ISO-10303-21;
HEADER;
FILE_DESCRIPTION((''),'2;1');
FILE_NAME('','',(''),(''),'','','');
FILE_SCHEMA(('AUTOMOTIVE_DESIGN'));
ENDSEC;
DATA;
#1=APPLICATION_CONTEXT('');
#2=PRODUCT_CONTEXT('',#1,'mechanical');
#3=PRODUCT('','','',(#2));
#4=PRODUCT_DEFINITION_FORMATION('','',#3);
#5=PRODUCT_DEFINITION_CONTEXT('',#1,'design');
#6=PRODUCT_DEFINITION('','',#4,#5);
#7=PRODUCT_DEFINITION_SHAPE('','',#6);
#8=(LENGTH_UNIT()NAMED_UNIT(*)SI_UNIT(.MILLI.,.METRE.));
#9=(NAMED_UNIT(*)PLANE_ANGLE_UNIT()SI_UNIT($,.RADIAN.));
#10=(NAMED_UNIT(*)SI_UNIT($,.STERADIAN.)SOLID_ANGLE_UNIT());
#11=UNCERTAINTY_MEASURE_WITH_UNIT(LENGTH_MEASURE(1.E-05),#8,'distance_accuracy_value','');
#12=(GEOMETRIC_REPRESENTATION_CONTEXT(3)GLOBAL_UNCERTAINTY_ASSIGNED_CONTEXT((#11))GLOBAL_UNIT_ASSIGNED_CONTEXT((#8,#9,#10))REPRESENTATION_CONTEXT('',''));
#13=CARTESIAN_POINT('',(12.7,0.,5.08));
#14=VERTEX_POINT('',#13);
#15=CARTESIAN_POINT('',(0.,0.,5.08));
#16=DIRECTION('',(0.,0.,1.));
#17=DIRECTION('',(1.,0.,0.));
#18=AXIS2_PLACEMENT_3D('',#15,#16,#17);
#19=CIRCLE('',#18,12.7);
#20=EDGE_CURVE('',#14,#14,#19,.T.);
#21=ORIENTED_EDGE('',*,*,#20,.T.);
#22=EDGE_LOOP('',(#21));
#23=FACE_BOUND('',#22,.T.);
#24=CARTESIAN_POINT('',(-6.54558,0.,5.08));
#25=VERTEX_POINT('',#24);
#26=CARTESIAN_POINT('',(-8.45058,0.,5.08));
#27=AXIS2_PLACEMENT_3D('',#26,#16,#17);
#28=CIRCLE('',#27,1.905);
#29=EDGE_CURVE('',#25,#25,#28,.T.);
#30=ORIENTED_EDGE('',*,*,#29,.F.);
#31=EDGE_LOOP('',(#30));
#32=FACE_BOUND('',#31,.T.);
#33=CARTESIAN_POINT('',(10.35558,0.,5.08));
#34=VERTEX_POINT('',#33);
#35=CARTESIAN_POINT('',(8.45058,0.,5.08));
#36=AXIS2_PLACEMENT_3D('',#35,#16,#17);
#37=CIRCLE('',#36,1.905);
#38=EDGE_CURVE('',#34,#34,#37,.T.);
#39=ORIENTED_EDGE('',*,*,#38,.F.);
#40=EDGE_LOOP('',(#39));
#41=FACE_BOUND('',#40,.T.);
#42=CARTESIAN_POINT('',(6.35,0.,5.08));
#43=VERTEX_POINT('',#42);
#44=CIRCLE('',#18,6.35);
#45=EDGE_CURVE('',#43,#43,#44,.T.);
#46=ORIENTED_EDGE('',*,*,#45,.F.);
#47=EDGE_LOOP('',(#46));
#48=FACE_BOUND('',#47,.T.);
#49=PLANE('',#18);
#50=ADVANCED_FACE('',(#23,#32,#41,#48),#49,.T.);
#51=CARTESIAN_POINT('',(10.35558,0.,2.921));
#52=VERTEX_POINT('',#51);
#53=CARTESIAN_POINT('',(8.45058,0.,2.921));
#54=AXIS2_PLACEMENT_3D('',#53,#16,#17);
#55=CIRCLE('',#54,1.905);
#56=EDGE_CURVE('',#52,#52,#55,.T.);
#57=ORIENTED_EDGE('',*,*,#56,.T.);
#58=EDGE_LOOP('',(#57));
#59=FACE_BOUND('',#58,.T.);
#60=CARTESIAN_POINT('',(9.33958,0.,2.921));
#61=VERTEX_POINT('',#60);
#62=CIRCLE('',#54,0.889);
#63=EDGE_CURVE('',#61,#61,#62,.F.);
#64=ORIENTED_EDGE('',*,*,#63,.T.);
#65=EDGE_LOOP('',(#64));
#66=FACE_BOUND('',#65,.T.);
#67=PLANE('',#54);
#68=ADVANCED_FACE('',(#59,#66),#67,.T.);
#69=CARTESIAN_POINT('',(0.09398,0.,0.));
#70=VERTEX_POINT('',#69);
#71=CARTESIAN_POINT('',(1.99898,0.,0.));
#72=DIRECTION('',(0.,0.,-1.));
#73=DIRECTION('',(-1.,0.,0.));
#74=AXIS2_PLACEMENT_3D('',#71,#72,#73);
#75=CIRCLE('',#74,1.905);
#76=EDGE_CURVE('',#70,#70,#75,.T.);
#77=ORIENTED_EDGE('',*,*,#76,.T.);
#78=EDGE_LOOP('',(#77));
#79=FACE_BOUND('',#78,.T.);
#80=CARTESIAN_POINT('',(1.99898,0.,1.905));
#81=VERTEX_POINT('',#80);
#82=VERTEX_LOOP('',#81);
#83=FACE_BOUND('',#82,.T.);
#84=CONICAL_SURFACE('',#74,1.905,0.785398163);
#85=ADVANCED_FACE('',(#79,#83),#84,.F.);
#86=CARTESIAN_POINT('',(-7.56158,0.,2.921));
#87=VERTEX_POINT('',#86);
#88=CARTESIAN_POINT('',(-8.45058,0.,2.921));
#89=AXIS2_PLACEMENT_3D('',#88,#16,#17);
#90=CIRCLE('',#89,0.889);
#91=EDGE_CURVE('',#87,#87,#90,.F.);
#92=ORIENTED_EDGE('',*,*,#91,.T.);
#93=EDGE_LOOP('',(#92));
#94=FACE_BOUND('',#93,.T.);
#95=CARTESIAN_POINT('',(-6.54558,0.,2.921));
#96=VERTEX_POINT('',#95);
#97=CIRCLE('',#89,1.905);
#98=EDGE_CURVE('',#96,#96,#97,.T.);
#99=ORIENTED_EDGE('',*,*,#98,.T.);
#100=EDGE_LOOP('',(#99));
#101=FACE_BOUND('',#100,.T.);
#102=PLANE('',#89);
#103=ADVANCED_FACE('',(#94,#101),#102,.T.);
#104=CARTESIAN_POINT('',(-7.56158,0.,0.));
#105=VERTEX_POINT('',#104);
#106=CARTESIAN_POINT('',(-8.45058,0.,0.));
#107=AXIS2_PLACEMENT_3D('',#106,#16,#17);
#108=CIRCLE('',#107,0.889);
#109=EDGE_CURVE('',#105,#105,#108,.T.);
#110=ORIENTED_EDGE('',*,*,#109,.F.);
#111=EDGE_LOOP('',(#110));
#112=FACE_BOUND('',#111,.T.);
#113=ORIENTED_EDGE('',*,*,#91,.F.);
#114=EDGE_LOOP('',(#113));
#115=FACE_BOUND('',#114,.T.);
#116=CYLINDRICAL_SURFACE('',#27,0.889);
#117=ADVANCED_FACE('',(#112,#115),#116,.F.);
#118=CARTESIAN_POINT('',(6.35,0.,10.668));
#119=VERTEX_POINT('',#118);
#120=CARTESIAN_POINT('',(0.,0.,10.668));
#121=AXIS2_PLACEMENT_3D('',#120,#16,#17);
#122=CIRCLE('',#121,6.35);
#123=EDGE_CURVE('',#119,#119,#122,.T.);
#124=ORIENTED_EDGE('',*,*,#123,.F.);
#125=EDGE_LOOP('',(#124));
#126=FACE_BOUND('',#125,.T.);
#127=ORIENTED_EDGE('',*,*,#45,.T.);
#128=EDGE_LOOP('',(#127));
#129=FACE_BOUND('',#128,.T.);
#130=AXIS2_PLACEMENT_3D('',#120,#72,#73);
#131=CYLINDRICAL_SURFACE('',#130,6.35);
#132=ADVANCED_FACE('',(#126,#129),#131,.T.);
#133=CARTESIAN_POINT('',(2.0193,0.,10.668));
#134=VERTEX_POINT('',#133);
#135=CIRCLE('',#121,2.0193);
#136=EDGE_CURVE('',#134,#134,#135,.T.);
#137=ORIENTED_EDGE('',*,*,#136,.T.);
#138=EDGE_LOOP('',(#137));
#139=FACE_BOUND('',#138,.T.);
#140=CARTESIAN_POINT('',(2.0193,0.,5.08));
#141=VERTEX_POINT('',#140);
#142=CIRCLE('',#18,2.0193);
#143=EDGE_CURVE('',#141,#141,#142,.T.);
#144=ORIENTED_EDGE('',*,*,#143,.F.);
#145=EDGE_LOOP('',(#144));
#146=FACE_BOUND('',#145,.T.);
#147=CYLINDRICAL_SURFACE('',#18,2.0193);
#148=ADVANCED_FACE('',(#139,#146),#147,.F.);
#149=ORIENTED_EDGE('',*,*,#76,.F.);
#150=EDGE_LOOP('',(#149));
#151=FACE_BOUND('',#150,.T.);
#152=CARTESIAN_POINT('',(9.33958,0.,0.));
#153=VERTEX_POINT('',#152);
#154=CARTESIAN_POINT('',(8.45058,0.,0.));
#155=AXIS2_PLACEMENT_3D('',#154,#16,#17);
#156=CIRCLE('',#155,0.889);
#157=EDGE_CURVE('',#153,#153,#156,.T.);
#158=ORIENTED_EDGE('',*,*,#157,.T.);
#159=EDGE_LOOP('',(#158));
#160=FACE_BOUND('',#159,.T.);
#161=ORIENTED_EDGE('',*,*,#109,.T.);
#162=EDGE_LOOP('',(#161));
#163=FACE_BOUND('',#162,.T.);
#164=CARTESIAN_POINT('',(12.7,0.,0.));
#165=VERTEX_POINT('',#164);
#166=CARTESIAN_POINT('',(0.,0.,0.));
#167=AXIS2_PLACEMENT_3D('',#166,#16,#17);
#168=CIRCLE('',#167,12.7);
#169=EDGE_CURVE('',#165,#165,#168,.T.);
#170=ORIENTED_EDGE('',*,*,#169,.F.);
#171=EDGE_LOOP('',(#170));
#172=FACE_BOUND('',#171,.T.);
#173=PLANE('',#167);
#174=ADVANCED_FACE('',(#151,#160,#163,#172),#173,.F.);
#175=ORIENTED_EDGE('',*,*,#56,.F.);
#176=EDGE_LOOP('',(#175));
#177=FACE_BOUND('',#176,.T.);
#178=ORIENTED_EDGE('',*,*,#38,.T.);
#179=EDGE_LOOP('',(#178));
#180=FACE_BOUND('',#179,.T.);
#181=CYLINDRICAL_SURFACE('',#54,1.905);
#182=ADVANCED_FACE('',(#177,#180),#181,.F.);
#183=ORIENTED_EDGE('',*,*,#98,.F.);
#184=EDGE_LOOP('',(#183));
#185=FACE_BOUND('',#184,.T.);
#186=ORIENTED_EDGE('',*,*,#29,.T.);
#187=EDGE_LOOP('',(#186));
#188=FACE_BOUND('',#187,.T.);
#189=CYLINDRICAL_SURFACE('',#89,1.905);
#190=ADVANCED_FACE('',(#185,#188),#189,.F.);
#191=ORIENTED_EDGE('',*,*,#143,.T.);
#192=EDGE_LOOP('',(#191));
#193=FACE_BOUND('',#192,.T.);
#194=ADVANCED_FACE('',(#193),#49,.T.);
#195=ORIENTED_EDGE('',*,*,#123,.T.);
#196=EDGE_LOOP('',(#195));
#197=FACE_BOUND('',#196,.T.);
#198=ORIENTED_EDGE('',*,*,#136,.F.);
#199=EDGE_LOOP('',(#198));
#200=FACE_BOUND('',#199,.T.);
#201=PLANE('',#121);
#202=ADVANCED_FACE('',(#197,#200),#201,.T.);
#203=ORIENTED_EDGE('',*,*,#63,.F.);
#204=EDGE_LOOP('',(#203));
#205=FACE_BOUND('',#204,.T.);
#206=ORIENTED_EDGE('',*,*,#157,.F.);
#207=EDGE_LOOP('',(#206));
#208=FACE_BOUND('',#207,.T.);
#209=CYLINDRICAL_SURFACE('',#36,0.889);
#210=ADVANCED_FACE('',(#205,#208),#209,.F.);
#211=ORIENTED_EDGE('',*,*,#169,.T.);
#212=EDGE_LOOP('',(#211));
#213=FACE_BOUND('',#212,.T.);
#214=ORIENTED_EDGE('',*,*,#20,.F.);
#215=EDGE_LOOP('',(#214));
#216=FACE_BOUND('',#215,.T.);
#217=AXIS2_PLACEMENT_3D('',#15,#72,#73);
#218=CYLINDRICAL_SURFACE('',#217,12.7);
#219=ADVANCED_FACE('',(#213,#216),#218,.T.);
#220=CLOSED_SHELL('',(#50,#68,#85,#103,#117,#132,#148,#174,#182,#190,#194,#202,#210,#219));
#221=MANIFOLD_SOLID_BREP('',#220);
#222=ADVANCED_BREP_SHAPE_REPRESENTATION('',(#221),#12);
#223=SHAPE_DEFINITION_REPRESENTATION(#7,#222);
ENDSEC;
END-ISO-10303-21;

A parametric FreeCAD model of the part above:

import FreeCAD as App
import Part
import Sketcher
Q = App.Units.Quantity

doc = App.newDocument("Part")
body = doc.addObject("PartDesign::Body", "Body")

# Sketch on XY plane
sketch1 = body.newObject("Sketcher::SketchObject", "Sketch")
sketch1.AttachmentSupport = (doc.getObject("XY_Plane"), [""])
sketch1.MapMode = "FlatFace"
sketch1.addGeometry(Part.Circle(App.Vector(0, 0, 0), App.Vector(0, 0, 1), 13), False)
sketch1.addConstraint([
    Sketcher.Constraint("Coincident", 0, 3, -1, 1),
    Sketcher.Constraint("Diameter", 0, Q("1 in")),
])
pad1 = body.newObject("PartDesign::Pad", "Pad")
pad1.Profile = sketch1
pad1.Length = Q("0.2 in")

# Sketch on XY plane
sketch2 = body.newObject("Sketcher::SketchObject", "Sketch001")
sketch2.AttachmentSupport = (doc.getObject("XY_Plane"), [""])
sketch2.MapMode = "FlatFace"
sketch2.AttachmentOffset = App.Placement(App.Vector(0, 0, 0.2 * 25.4), App.Rotation())
sketch2.addGeometry(Part.Circle(App.Vector(0, 0, 0), App.Vector(0, 0, 1), 6), False)
sketch2.addConstraint([
    Sketcher.Constraint("Coincident", 0, 3, -1, 1),
    Sketcher.Constraint("Diameter", 0, Q("0.5 in")),
])
pad2 = body.newObject("PartDesign::Pad", "Pad001")
pad2.Profile = sketch2
pad2.Length = Q("0.22 in")

# Sketch on XY plane
sketch3 = body.newObject("Sketcher::SketchObject", "Sketch002")
sketch3.AttachmentSupport = (doc.getObject("XY_Plane"), [""])
sketch3.MapMode = "FlatFace"
sketch3.AttachmentOffset = App.Placement(App.Vector(0, 0, 0.42 * 25.4), App.Rotation())
sketch3.addGeometry(Part.Circle(App.Vector(0, 0, 0), App.Vector(0, 0, 1), 2), False)
sketch3.addConstraint([
    Sketcher.Constraint("Coincident", 0, 3, -1, 1),
    Sketcher.Constraint("Diameter", 0, Q("0.159 in")),
])
pocket1 = body.newObject("PartDesign::Pocket", "Pocket")
pocket1.Profile = sketch3
pocket1.Length = Q("0.22 in")

# Sketch on XY plane
sketch4 = body.newObject("Sketcher::SketchObject", "Sketch003")
sketch4.AttachmentSupport = (doc.getObject("XY_Plane"), [""])
sketch4.MapMode = "FlatFace"
sketch4.AttachmentOffset = App.Placement(App.Vector(0, 0, 0.2 * 25.4), App.Rotation())
sketch4.addGeometry([
    Part.Circle(App.Vector(-8.5, 0, 0), App.Vector(0, 0, 1), 0.9),
    Part.Circle(App.Vector(8.5, 0, 0), App.Vector(0, 0, 1), 0.9),
], False)
sketch4.addConstraint([
    Sketcher.Constraint("Equal", 0, 1),
    Sketcher.Constraint("Symmetric", 0, 3, 1, 3, -1, 1),
    Sketcher.Constraint("PointOnObject", 0, 3, -1),
    Sketcher.Constraint("Diameter", 0, Q("0.07 in")),
    Sketcher.Constraint("DistanceX", 0, 3, -1, 1, Q("0.3327 in")),
])
doc.recompute()
hole = body.newObject("PartDesign::Hole", "Hole")
hole.Profile = sketch4
hole.ThreadType = "None"
hole.Diameter = Q("0.07 in")
hole.DepthType = "ThroughAll"

# Sketch on XY plane
sketch5 = body.newObject("Sketcher::SketchObject", "Sketch004")
sketch5.AttachmentSupport = (doc.getObject("XY_Plane"), [""])
sketch5.MapMode = "FlatFace"
sketch5.AttachmentOffset = App.Placement(App.Vector(0, 0, 0.2 * 25.4), App.Rotation())
sketch5.addGeometry([
    Part.Circle(App.Vector(-8.5, 0, 0), App.Vector(0, 0, 1), 1.9),
    Part.Circle(App.Vector(8.5, 0, 0), App.Vector(0, 0, 1), 1.9),
], False)
sketch5.addConstraint([
    Sketcher.Constraint("Equal", 0, 1),
    Sketcher.Constraint("Symmetric", 0, 3, 1, 3, -1, 1),
    Sketcher.Constraint("PointOnObject", 0, 3, -1),
    Sketcher.Constraint("Diameter", 0, Q("0.15 in")),
    Sketcher.Constraint("DistanceX", 0, 3, -1, 1, Q("0.3327 in")),
])
pocket2 = body.newObject("PartDesign::Pocket", "Pocket001")
pocket2.Profile = sketch5
pocket2.Length = Q("0.085 in")

# Sketch on YZ plane
sketch6 = body.newObject("Sketcher::SketchObject", "Sketch005")
sketch6.AttachmentSupport = (doc.getObject("YZ_Plane"), [""])
sketch6.MapMode = "FlatFace"
sketch6.AttachmentOffset = App.Placement(App.Vector(0, 0, 0.0787 * 25.4), App.Rotation())
sketch6.addGeometry([
    Part.LineSegment(App.Vector(0, 0, 0), App.Vector(1.9, 0, 0)),
    Part.LineSegment(App.Vector(1.9, 0, 0), App.Vector(0, 1.9, 0)),
    Part.LineSegment(App.Vector(0, 1.9, 0), App.Vector(0, 0, 0)),
], False)
sketch6.addConstraint([
    Sketcher.Constraint("Coincident", 0, 2, 1, 1),
    Sketcher.Constraint("Coincident", 1, 2, 2, 1),
    Sketcher.Constraint("Coincident", 2, 2, 0, 1),
    Sketcher.Constraint("Horizontal", 0),
    Sketcher.Constraint("Vertical", 2),
    Sketcher.Constraint("Coincident", 2, 2, -1, 1),
    Sketcher.Constraint("Equal", 0, 2),
    Sketcher.Constraint("DistanceX", 0, 1, 0, 2, Q("0.075 in")),
])
groove = body.newObject("PartDesign::Groove", "Groove")
groove.Profile = sketch6
groove.ReferenceAxis = (sketch6, ["V_Axis"])
groove.Angle = 360

doc.recompute()
